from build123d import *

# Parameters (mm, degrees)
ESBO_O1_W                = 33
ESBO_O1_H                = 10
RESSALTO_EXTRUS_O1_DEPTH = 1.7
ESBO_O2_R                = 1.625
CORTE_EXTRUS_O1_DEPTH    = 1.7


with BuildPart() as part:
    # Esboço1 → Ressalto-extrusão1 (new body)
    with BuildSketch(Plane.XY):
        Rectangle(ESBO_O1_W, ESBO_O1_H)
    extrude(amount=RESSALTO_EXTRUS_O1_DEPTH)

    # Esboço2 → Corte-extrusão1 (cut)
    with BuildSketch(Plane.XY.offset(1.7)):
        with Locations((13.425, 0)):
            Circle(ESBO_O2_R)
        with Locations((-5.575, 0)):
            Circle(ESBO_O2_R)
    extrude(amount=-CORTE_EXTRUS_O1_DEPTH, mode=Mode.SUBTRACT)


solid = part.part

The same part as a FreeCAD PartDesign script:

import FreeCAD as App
import Part
import Sketcher


def add_polygon(sketch, points):
    """Adds a closed chain of lines whose ends are joined by coincident constraints."""
    first, n = sketch.GeometryCount, len(points)
    for a, b in zip(points, points[1:] + points[:1]):
        sketch.addGeometry(Part.LineSegment(App.Vector(*a, 0), App.Vector(*b, 0)), False)
    for i in range(n):
        sketch.addConstraint(Sketcher.Constraint("Coincident", first + i, 2, first + (i + 1) % n, 1))

doc = App.newDocument("Part")
body = doc.addObject("PartDesign::Body", "Body")

# Sketch on XY plane
sketch1 = doc.addObject("Sketcher::SketchObject", "Sketch")
body.addObject(sketch1)
sketch1.AttachmentSupport = (doc.XY_Plane, [""])
sketch1.MapMode = "FlatFace"
add_polygon(sketch1, [(-16, 5), (-16, -5), (16, -5), (16, 5)])  # lines 0-3
sketch1.addConstraint([
    Sketcher.Constraint("Vertical", 0),
    Sketcher.Constraint("Horizontal", 1),
    Sketcher.Constraint("Vertical", 2),
    Sketcher.Constraint("Horizontal", 3),
    Sketcher.Constraint("Symmetric", 0, 2, 2, 2, -1, 1),
    Sketcher.Constraint("DistanceX", 1, 1, 1, 2, 33.0),
    Sketcher.Constraint("DistanceY", 0, 2, 0, 1, 10.0),
])
pad1 = doc.addObject("PartDesign::Pad", "Pad")
body.addObject(pad1)
pad1.Profile = sketch1
pad1.Length = 1.7

# Sketch on XY plane
sketch2 = doc.addObject("Sketcher::SketchObject", "Sketch001")
body.addObject(sketch2)
sketch2.AttachmentSupport = (doc.XY_Plane, [""])
sketch2.MapMode = "FlatFace"
sketch2.AttachmentOffset = App.Placement(App.Vector(0, 0, 1.7), App.Rotation())
sketch2.addGeometry([
    Part.Circle(App.Vector(13.4, 0, 0), App.Vector(0, 0, 1), 1.6),
    Part.Circle(App.Vector(-5.6, 0, 0), App.Vector(0, 0, 1), 1.6),
], False)
sketch2.addConstraint([
    Sketcher.Constraint("Equal", 0, 1),
    Sketcher.Constraint("PointOnObject", 0, 3, -1),
    Sketcher.Constraint("PointOnObject", 1, 3, -1),
    Sketcher.Constraint("Diameter", 0, 3.25),
    Sketcher.Constraint("DistanceX", 1, 3, 0, 3, 19.0),
    Sketcher.Constraint("DistanceX", -1, 1, 0, 3, 13.425),
])
pocket1 = doc.addObject("PartDesign::Pocket", "Pocket")
body.addObject(pocket1)
pocket1.Profile = sketch2
pocket1.Length = 1.7

doc.recompute()
